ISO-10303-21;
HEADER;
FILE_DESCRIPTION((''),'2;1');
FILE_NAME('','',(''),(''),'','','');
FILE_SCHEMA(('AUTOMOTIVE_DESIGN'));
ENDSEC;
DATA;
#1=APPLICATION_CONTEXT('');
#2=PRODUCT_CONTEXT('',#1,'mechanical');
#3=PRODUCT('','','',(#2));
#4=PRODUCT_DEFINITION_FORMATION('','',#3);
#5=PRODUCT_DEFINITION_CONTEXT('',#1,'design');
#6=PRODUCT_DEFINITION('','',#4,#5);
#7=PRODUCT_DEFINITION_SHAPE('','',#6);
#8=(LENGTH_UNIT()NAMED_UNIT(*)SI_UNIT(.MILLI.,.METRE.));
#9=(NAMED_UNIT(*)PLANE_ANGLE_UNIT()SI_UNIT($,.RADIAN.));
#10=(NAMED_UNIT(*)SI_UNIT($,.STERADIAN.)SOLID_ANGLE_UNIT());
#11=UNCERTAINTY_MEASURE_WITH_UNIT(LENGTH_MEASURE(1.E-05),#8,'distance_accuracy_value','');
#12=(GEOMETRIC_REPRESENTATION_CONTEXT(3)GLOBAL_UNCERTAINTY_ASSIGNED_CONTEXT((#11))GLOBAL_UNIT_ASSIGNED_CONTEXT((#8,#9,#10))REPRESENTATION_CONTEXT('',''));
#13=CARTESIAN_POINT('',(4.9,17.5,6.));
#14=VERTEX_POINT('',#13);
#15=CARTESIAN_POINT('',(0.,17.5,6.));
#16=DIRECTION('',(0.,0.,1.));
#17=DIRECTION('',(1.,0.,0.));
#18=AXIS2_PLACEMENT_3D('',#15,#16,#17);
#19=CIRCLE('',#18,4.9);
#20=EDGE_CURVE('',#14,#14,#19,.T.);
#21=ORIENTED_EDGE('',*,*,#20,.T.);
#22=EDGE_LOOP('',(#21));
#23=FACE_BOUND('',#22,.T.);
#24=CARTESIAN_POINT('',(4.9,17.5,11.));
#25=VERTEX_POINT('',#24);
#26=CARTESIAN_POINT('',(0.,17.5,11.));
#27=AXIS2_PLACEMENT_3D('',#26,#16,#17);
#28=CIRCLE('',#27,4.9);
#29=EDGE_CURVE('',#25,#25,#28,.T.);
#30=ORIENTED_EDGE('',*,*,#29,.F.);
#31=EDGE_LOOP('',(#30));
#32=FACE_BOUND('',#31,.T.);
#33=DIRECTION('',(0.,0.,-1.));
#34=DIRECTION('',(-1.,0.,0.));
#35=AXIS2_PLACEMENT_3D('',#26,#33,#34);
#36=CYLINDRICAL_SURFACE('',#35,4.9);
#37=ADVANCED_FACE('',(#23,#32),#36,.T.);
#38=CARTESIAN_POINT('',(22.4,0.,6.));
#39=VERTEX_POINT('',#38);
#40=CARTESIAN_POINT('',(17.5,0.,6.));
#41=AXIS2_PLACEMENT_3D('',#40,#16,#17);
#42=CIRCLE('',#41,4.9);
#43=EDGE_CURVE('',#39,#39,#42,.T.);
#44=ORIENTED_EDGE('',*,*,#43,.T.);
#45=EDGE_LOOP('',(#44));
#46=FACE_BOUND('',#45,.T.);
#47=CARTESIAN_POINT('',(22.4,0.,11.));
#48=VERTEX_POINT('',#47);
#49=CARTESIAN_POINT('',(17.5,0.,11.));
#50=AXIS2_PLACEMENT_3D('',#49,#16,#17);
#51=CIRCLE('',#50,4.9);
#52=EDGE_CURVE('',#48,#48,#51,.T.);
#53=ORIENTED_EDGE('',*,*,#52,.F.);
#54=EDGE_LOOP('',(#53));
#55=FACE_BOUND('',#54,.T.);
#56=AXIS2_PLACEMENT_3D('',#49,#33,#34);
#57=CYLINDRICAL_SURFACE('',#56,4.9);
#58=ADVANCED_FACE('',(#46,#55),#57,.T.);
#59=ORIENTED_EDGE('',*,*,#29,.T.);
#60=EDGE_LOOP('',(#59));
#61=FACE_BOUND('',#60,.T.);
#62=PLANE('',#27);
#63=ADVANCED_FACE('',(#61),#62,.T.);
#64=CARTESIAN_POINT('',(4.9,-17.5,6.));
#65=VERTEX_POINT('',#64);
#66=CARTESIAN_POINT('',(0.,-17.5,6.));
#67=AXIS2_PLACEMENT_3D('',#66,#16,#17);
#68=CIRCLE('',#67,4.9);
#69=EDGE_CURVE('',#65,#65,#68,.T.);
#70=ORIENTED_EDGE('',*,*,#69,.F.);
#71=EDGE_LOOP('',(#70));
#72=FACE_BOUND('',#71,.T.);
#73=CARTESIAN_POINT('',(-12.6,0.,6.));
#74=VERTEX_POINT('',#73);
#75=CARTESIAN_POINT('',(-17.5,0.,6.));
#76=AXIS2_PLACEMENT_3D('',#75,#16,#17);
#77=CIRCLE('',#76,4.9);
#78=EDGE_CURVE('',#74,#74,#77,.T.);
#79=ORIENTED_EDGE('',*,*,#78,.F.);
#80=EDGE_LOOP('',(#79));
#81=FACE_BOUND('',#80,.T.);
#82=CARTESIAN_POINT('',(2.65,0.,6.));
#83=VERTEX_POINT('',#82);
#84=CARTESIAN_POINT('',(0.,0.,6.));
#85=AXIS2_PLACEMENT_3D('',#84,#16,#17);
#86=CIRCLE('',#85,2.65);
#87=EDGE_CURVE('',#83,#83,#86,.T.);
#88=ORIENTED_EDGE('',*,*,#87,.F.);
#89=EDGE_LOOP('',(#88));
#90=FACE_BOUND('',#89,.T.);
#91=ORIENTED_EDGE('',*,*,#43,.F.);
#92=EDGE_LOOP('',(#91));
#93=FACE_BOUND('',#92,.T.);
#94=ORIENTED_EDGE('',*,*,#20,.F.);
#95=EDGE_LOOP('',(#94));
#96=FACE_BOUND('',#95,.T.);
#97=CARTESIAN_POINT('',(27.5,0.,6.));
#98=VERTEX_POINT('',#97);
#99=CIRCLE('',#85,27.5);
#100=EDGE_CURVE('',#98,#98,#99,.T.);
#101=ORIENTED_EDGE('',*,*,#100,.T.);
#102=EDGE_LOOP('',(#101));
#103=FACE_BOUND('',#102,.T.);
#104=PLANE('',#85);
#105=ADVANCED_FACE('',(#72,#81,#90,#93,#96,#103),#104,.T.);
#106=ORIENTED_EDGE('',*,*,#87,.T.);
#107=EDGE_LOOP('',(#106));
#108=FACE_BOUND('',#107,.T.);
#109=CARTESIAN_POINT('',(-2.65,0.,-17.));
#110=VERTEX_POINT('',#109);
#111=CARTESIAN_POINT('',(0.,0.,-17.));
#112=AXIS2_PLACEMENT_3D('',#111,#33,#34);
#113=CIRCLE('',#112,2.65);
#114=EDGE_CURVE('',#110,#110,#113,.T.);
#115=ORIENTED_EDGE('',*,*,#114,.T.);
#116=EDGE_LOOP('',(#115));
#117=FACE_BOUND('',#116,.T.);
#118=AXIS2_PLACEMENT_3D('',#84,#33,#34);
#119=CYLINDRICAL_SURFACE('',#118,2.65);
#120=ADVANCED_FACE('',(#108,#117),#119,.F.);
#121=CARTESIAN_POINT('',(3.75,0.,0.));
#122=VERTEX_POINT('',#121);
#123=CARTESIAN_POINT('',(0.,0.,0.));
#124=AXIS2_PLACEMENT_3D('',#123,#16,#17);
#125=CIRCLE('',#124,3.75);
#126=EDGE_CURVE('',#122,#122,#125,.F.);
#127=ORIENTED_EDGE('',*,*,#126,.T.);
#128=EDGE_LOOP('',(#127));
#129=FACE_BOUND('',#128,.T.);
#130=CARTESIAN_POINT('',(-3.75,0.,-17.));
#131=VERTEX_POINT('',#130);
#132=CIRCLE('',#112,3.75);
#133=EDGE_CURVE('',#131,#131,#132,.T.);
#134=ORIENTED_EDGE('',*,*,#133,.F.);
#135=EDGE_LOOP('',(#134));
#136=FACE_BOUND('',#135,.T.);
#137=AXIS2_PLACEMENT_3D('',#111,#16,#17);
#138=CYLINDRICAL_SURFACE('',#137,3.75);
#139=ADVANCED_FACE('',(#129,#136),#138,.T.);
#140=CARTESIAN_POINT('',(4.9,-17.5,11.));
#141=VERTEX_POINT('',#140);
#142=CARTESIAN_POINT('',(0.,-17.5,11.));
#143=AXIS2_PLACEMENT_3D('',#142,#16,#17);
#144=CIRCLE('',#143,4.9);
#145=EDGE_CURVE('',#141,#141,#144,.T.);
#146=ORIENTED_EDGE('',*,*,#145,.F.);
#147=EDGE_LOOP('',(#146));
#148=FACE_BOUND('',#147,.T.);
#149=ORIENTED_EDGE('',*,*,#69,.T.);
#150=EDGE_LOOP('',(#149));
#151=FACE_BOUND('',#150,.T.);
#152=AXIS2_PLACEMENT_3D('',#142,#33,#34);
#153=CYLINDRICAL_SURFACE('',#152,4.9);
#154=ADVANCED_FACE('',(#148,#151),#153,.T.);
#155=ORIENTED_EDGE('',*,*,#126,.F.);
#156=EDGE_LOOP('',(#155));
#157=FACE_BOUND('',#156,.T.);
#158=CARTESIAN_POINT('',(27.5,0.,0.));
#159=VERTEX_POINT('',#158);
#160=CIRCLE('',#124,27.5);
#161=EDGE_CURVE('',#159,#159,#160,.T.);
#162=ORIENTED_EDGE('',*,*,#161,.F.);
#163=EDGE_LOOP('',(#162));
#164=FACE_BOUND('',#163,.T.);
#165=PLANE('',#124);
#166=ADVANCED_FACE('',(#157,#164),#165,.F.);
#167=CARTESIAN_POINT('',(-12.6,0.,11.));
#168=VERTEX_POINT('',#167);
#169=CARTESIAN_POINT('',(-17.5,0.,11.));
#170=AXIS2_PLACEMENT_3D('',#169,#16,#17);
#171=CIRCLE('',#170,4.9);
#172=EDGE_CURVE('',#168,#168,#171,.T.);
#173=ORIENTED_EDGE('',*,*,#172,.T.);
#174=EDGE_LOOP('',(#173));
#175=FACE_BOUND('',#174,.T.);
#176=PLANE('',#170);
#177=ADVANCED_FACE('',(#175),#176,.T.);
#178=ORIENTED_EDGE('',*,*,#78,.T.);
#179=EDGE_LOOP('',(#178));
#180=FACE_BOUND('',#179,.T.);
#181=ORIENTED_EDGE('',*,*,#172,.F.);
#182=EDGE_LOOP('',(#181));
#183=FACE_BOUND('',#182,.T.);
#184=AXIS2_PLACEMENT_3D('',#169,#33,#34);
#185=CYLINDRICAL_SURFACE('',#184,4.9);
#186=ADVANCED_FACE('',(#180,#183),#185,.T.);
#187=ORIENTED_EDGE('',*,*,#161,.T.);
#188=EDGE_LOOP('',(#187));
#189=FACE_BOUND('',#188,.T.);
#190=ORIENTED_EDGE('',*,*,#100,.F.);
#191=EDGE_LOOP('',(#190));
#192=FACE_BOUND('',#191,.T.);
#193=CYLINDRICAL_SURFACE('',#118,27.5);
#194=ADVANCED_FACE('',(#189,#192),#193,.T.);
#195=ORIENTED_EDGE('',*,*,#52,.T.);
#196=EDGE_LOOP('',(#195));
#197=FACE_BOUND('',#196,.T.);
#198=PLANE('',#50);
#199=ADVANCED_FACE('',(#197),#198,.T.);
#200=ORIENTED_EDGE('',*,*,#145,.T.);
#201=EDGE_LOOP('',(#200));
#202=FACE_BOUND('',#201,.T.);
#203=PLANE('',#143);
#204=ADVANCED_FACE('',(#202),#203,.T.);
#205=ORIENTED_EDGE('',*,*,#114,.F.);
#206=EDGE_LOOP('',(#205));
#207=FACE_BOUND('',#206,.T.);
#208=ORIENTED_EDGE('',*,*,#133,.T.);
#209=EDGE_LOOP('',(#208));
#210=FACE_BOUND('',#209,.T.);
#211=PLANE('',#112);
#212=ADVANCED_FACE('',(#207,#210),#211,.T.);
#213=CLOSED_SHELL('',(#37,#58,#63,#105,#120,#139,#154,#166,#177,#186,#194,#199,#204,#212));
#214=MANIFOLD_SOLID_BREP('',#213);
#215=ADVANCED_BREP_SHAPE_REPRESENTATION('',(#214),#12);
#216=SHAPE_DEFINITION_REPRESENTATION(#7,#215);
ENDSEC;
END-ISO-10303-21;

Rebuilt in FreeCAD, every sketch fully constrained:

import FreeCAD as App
import Part
import Sketcher
Q = App.Units.Quantity

doc = App.newDocument("Part")
body = doc.addObject("PartDesign::Body", "Body")

# Sketch on XY plane
sketch1 = doc.addObject("Sketcher::SketchObject", "Sketch")
body.addObject(sketch1)
sketch1.AttachmentSupport = (doc.XY_Plane, [""])
sketch1.MapMode = "FlatFace"
sketch1.addGeometry(Part.Circle(App.Vector(0, 0, 0), App.Vector(0, 0, 1), 27.5), False)
sketch1.addGeometry(Part.Circle(App.Vector(0, 0, 0), App.Vector(0, 0, 1), 2.6), False)
sketch1.addConstraint(Sketcher.Constraint("Coincident", 0, 3, -1, 1))
sketch1.addConstraint(Sketcher.Constraint("Coincident", 1, 3, -1, 1))
sketch1.addConstraint(Sketcher.Constraint("Diameter", 0, Q("55 mm")))
sketch1.addConstraint(Sketcher.Constraint("Diameter", 1, Q("5.3 mm")))
pad1 = doc.addObject("PartDesign::Pad", "Pad")
body.addObject(pad1)
pad1.Profile = sketch1
pad1.Length = 6

# Sketch on XY plane
sketch2 = doc.addObject("Sketcher::SketchObject", "Sketch001")
body.addObject(sketch2)
sketch2.AttachmentSupport = (doc.XY_Plane, [""])
sketch2.MapMode = "FlatFace"
sketch2.AttachmentOffset = App.Placement(App.Vector(0, 0, 6), App.Rotation())
sketch2.addGeometry(Part.Circle(App.Vector(0, 17.5, 0), App.Vector(0, 0, 1), 4.9), False)
sketch2.addGeometry(Part.Circle(App.Vector(17.5, 0, 0), App.Vector(0, 0, 1), 4.9), False)
sketch2.addGeometry(Part.Circle(App.Vector(0, -17.5, 0), App.Vector(0, 0, 1), 4.9), False)
sketch2.addGeometry(Part.Circle(App.Vector(-17.5, 0, 0), App.Vector(0, 0, 1), 4.9), False)
sketch2.addConstraint(Sketcher.Constraint("Equal", 0, 1))
sketch2.addConstraint(Sketcher.Constraint("Equal", 1, 2))
sketch2.addConstraint(Sketcher.Constraint("Equal", 2, 3))
sketch2.addConstraint(Sketcher.Constraint("Symmetric", 0, 3, 2, 3, -1, 1))
sketch2.addConstraint(Sketcher.Constraint("Symmetric", 1, 3, 3, 3, -1, 1))
sketch2.addConstraint(Sketcher.Constraint("PointOnObject", 0, 3, -2))
sketch2.addConstraint(Sketcher.Constraint("PointOnObject", 1, 3, -1))
sketch2.addConstraint(Sketcher.Constraint("Diameter", 0, Q("9.8 mm")))
sketch2.addConstraint(Sketcher.Constraint("DistanceY", 2, 3, 0, 3, Q("35 mm")))
sketch2.addConstraint(Sketcher.Constraint("DistanceX", 3, 3, 1, 3, Q("35 mm")))
pad2 = doc.addObject("PartDesign::Pad", "Pad001")
body.addObject(pad2)
pad2.Profile = sketch2
pad2.Length = 5

# Sketch on XY plane
sketch3 = doc.addObject("Sketcher::SketchObject", "Sketch002")
body.addObject(sketch3)
sketch3.AttachmentSupport = (doc.XY_Plane, [""])
sketch3.MapMode = "FlatFace"
sketch3.AttachmentOffset = App.Placement(App.Vector(0, 0, -17), App.Rotation())
sketch3.addGeometry(Part.Circle(App.Vector(0, 0, 0), App.Vector(0, 0, 1), 3.8), False)
sketch3.addGeometry(Part.Circle(App.Vector(0, 0, 0), App.Vector(0, 0, 1), 2.6), False)
sketch3.addConstraint(Sketcher.Constraint("Coincident", 0, 3, -1, 1))
sketch3.addConstraint(Sketcher.Constraint("Coincident", 1, 3, -1, 1))
sketch3.addConstraint(Sketcher.Constraint("Diameter", 0, Q("7.5 mm")))
sketch3.addConstraint(Sketcher.Constraint("Diameter", 1, Q("5.3 mm")))
pad3 = doc.addObject("PartDesign::Pad", "Pad002")
body.addObject(pad3)
pad3.Profile = sketch3
pad3.Length = 17

doc.recompute()
